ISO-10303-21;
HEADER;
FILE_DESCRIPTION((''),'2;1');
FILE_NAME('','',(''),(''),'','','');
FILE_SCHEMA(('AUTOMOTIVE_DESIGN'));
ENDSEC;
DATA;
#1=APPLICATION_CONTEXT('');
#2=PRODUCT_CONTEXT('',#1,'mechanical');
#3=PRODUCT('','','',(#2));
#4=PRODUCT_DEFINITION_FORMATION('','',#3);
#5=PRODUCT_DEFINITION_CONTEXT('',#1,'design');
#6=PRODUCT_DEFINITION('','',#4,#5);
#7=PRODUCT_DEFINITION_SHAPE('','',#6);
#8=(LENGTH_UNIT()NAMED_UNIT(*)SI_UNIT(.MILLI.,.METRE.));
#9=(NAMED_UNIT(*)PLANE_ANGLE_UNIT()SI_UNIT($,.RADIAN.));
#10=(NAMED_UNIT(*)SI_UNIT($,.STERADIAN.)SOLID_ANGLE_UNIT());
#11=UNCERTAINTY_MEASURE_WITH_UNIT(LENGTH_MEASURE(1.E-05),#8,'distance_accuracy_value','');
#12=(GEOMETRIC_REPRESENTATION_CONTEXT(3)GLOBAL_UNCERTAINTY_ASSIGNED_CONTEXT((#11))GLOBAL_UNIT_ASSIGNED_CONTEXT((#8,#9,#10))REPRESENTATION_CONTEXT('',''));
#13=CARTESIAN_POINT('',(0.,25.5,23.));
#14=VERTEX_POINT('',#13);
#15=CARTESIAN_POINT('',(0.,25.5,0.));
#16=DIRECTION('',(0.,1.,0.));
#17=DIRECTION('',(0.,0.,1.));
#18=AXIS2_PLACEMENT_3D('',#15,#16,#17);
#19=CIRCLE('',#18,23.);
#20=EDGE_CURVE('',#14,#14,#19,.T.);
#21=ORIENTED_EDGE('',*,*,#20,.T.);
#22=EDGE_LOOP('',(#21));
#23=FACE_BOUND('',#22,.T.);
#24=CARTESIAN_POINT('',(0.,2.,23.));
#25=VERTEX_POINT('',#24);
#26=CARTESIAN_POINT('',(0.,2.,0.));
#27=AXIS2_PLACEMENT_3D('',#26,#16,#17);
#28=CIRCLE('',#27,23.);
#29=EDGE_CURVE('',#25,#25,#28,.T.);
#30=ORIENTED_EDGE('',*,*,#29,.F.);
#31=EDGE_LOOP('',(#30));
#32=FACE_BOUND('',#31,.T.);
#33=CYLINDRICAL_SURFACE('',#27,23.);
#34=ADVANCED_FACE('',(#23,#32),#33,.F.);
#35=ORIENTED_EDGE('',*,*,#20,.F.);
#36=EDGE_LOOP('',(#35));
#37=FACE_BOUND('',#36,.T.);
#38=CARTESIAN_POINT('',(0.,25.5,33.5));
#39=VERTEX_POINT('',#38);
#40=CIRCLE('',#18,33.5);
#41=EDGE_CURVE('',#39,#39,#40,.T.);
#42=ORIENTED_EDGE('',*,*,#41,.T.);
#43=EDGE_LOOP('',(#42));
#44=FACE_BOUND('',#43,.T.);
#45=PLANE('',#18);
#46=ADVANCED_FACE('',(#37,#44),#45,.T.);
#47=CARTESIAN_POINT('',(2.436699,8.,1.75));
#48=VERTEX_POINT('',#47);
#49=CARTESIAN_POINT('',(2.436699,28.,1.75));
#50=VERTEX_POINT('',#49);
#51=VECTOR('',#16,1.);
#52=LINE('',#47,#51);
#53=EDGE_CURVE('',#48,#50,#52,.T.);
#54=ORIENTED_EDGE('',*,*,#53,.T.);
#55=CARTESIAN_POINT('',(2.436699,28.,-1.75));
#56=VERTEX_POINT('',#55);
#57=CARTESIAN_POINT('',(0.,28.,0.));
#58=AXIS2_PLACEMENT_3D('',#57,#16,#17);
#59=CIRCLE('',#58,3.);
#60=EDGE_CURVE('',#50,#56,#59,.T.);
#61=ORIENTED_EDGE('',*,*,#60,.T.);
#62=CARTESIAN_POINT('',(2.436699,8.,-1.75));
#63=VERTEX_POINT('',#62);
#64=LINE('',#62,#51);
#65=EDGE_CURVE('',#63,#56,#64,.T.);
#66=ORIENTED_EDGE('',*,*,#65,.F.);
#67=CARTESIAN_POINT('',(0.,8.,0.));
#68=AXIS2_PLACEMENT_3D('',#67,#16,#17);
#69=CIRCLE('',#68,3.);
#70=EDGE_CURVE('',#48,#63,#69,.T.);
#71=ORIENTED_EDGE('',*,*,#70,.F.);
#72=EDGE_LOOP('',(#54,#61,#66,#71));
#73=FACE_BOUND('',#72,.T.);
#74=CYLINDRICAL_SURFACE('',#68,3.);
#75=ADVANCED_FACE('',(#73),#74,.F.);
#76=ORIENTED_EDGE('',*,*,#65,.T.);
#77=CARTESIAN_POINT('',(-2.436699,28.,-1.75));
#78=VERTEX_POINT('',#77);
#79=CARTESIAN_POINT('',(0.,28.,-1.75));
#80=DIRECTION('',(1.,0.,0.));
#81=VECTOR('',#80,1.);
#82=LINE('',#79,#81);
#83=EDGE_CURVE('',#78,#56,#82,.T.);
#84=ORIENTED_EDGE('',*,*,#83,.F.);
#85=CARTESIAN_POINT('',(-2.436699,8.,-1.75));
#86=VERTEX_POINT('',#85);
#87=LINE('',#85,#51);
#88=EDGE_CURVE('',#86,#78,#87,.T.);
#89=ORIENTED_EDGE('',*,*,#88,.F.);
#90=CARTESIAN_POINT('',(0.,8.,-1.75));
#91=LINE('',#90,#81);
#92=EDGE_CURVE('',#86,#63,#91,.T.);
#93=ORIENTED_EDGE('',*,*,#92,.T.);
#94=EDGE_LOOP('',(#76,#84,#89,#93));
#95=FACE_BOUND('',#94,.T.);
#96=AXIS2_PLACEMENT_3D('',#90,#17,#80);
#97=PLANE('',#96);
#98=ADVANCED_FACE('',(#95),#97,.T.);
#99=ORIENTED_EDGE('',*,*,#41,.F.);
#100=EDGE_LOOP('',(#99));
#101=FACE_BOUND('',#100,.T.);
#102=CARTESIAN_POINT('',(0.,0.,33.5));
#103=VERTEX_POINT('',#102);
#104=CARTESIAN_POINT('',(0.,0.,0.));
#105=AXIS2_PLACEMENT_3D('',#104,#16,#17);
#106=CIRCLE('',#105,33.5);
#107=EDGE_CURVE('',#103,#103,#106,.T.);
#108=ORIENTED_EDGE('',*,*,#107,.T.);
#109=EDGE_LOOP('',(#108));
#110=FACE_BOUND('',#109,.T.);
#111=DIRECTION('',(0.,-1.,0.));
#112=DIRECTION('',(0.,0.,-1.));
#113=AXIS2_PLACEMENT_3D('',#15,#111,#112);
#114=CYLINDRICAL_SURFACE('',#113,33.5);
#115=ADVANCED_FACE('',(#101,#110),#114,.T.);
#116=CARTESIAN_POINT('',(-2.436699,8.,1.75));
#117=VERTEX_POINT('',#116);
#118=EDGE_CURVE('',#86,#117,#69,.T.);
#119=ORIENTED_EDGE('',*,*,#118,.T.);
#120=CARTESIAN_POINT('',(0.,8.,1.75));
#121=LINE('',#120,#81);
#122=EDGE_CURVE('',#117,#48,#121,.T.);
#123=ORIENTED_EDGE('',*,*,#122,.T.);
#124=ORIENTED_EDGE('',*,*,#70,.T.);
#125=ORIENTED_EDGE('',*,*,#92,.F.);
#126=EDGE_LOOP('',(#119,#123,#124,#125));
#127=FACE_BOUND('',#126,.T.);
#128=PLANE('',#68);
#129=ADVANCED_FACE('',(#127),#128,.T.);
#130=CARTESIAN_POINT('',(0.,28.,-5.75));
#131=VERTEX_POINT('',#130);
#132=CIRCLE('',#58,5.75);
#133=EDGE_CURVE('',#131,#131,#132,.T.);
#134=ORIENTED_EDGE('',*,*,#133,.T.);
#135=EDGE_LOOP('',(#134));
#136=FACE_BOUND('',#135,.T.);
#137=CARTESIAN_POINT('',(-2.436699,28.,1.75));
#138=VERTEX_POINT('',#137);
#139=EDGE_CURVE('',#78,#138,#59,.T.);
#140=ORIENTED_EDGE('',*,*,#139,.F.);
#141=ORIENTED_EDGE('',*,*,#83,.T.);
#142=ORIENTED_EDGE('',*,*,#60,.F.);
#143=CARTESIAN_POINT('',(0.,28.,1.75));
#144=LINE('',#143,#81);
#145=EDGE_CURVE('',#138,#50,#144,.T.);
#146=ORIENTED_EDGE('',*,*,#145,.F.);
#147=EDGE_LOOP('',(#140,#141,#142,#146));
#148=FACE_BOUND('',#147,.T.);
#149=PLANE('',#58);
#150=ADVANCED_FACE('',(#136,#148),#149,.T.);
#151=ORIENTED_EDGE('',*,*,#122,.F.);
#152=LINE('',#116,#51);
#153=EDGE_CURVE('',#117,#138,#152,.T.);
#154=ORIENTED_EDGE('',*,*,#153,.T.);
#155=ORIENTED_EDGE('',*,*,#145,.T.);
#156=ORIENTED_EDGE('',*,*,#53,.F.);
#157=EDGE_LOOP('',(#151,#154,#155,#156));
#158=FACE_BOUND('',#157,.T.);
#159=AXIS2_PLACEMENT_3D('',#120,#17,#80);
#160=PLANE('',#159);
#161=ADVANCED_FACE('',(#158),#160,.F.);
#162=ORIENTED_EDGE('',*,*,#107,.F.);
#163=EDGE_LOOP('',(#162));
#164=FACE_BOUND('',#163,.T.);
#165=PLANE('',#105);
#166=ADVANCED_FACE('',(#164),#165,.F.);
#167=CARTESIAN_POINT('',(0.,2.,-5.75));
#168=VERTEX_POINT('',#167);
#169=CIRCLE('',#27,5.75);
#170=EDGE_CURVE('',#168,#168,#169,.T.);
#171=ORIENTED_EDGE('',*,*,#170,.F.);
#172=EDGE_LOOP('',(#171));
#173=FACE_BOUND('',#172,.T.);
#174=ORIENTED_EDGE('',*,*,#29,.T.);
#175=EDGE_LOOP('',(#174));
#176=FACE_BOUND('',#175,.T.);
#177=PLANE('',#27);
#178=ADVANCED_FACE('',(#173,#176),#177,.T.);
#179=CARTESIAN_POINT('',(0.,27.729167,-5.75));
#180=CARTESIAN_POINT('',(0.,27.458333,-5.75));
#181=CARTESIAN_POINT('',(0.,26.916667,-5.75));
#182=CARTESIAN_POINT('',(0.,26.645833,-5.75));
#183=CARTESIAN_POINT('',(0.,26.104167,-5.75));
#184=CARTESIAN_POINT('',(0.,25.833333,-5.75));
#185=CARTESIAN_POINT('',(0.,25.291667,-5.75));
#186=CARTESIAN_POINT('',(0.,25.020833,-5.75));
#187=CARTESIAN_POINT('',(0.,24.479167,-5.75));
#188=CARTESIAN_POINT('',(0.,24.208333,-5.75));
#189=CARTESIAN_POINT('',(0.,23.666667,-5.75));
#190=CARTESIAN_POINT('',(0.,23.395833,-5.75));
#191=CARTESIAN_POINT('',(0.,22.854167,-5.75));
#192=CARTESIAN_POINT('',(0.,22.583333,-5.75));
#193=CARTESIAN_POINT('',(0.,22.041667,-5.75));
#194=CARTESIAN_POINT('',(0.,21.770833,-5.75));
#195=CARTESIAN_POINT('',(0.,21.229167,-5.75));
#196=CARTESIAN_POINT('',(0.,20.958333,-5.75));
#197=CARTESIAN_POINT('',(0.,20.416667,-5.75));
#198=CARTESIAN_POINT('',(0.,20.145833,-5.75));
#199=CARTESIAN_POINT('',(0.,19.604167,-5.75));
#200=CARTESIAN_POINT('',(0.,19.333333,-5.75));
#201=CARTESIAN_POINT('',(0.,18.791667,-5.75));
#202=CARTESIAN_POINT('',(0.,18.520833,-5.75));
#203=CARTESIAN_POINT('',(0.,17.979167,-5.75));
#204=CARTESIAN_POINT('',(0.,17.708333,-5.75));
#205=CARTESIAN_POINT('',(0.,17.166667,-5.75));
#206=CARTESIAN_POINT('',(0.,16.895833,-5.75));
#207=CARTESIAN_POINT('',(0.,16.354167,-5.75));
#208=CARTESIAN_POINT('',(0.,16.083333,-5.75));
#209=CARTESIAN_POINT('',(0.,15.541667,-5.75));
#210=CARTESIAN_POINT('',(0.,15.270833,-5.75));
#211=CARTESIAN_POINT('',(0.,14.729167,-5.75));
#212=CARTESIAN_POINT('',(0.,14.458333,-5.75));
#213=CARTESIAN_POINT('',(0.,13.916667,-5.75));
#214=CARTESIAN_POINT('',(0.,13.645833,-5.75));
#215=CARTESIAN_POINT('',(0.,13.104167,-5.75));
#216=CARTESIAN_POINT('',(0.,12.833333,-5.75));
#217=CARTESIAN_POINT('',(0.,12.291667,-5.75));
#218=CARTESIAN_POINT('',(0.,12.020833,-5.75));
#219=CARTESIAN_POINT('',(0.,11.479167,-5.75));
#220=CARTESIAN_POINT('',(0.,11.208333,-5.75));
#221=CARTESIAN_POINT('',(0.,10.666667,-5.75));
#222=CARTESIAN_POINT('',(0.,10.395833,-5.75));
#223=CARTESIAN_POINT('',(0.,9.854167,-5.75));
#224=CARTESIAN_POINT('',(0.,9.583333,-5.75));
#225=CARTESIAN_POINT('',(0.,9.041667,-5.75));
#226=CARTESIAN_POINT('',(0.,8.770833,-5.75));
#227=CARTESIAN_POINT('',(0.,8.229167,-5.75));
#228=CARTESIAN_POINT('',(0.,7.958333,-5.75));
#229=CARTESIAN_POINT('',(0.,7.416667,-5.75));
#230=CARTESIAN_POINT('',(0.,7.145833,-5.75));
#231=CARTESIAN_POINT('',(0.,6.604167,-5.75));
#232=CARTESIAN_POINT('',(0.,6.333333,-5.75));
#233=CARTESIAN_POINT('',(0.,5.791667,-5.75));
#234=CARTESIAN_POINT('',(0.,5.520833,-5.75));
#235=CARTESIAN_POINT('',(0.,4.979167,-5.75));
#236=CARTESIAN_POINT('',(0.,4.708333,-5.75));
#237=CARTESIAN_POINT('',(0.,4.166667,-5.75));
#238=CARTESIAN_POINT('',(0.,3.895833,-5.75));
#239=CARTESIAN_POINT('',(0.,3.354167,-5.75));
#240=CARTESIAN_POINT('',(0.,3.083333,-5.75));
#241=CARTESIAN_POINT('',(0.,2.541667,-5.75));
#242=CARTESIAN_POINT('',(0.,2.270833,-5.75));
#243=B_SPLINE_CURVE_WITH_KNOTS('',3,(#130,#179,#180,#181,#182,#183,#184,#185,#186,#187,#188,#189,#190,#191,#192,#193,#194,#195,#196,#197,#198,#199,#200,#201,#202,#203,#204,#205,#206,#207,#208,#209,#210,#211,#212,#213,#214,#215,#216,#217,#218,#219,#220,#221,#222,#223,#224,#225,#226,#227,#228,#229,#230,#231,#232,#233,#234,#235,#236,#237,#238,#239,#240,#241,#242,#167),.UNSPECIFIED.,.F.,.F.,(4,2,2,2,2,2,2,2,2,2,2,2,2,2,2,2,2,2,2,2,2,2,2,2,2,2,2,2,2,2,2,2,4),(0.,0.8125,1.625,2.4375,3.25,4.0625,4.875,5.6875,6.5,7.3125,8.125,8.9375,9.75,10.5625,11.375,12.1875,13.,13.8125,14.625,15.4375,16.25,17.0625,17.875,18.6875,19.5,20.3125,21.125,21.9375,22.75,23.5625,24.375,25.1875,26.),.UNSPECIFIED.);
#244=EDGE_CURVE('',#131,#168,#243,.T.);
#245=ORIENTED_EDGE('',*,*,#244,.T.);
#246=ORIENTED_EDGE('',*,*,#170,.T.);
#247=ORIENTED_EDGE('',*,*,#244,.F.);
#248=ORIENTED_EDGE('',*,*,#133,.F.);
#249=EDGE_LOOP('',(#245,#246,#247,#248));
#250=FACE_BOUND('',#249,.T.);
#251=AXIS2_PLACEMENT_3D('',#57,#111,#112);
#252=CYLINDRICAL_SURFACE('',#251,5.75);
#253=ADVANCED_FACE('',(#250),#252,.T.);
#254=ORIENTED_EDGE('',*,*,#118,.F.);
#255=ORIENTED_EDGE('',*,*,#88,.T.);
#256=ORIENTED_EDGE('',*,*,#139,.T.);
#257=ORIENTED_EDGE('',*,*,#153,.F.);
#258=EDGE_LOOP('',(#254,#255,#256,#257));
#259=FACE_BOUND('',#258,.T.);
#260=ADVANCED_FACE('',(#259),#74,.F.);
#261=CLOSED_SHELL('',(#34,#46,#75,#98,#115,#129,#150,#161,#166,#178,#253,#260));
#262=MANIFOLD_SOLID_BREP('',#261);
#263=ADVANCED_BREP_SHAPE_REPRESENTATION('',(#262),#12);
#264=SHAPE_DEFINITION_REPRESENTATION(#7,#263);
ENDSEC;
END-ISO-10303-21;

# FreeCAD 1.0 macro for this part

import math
import FreeCAD as App
import Part
import Sketcher
Q = App.Units.Quantity

doc = App.newDocument("Part")
body = doc.addObject("PartDesign::Body", "Body")

# Sketch on XZ plane
sketch1 = body.newObject("Sketcher::SketchObject", "Sketch")
sketch1.AttachmentSupport = (doc.getObject("XZ_Plane"), [""])
sketch1.MapMode = "FlatFace"
sketch1.addGeometry(Part.Circle(App.Vector(0, 0, 0), App.Vector(0, 0, 1), 34), False)
sketch1.addConstraint(Sketcher.Constraint("Coincident", 0, 3, -1, 1))
sketch1.addConstraint(Sketcher.Constraint("Diameter", 0, Q("67 mm")))
pad1 = body.newObject("PartDesign::Pad", "Pad")
pad1.Profile = sketch1
pad1.Length = 25.5
pad1.Reversed = True

# Sketch on XZ plane
sketch2 = body.newObject("Sketcher::SketchObject", "Sketch001")
sketch2.AttachmentSupport = (doc.getObject("XZ_Plane"), [""])
sketch2.MapMode = "FlatFace"
sketch2.AttachmentOffset = App.Placement(App.Vector(0, 0, -25.5), App.Rotation())
sketch2.addGeometry(Part.Circle(App.Vector(0, 0, 0), App.Vector(0, 0, 1), 23), False)
sketch2.addConstraint(Sketcher.Constraint("Coincident", 0, 3, -1, 1))
sketch2.addConstraint(Sketcher.Constraint("Diameter", 0, Q("46 mm")))
pocket1 = body.newObject("PartDesign::Pocket", "Pocket")
pocket1.Profile = sketch2
pocket1.Length = 23.5
pocket1.Reversed = True

# Sketch on XZ plane
sketch3 = body.newObject("Sketcher::SketchObject", "Sketch002")
sketch3.AttachmentSupport = (doc.getObject("XZ_Plane"), [""])
sketch3.MapMode = "FlatFace"
sketch3.AttachmentOffset = App.Placement(App.Vector(0, 0, -2), App.Rotation())
sketch3.addGeometry(Part.Circle(App.Vector(0, 0, 0), App.Vector(0, 0, 1), 6), False)
sketch3.addConstraint(Sketcher.Constraint("Coincident", 0, 3, -1, 1))
sketch3.addConstraint(Sketcher.Constraint("Diameter", 0, Q("11.5 mm")))
pad2 = body.newObject("PartDesign::Pad", "Pad001")
pad2.Profile = sketch3
pad2.Length = 26
pad2.Reversed = True

# Sketch on XZ plane
sketch4 = body.newObject("Sketcher::SketchObject", "Sketch003")
sketch4.AttachmentSupport = (doc.getObject("XZ_Plane"), [""])
sketch4.MapMode = "FlatFace"
sketch4.AttachmentOffset = App.Placement(App.Vector(0, 0, -28), App.Rotation())
sketch4.addGeometry(Part.LineSegment(App.Vector(2.4, -1.8, 0), App.Vector(-2.4, -1.8, 0)), False)
sketch4.addGeometry(Part.ArcOfCircle(Part.Circle(App.Vector(0, 0, 0), App.Vector(0, 0, 1), 3), math.radians(144), math.radians(216)), False)
sketch4.addGeometry(Part.LineSegment(App.Vector(-2.4, 1.8, 0), App.Vector(2.4, 1.8, 0)), False)
sketch4.addGeometry(Part.ArcOfCircle(Part.Circle(App.Vector(0, 0, 0), App.Vector(0, 0, 1), 3), math.radians(0), math.radians(36)), False)
sketch4.addGeometry(Part.ArcOfCircle(Part.Circle(App.Vector(0, 0, 0), App.Vector(0, 0, 1), 3), math.radians(-36), math.radians(0)), False)
sketch4.addConstraint(Sketcher.Constraint("Coincident", 0, 2, 1, 2))
sketch4.addConstraint(Sketcher.Constraint("Coincident", 1, 1, 2, 1))
sketch4.addConstraint(Sketcher.Constraint("Coincident", 2, 2, 3, 2))
sketch4.addConstraint(Sketcher.Constraint("Tangent", 3, 1, 4, 2))
sketch4.addConstraint(Sketcher.Constraint("Coincident", 4, 1, 0, 1))
sketch4.addConstraint(Sketcher.Constraint("Horizontal", 0))
sketch4.addConstraint(Sketcher.Constraint("Horizontal", 2))
sketch4.addConstraint(Sketcher.Constraint("Coincident", 1, 3, -1, 1))
sketch4.addConstraint(Sketcher.Constraint("Coincident", 3, 3, -1, 1))
sketch4.addConstraint(Sketcher.Constraint("Equal", 1, 3))
sketch4.addConstraint(Sketcher.Constraint("Equal", 3, 4))
sketch4.addConstraint(Sketcher.Constraint("PointOnObject", 3, 1, -1))
sketch4.addConstraint(Sketcher.Constraint("Vertical", 0, 2, 1, 1))
sketch4.addConstraint(Sketcher.Constraint("Radius", 1, Q("3 mm")))
sketch4.addConstraint(Sketcher.Constraint("DistanceY", 0, 2, 1, 1, Q("3.5 mm")))
pocket2 = body.newObject("PartDesign::Pocket", "Pocket001")
pocket2.Profile = sketch4
pocket2.Length = 20
pocket2.Reversed = True

doc.recompute()
